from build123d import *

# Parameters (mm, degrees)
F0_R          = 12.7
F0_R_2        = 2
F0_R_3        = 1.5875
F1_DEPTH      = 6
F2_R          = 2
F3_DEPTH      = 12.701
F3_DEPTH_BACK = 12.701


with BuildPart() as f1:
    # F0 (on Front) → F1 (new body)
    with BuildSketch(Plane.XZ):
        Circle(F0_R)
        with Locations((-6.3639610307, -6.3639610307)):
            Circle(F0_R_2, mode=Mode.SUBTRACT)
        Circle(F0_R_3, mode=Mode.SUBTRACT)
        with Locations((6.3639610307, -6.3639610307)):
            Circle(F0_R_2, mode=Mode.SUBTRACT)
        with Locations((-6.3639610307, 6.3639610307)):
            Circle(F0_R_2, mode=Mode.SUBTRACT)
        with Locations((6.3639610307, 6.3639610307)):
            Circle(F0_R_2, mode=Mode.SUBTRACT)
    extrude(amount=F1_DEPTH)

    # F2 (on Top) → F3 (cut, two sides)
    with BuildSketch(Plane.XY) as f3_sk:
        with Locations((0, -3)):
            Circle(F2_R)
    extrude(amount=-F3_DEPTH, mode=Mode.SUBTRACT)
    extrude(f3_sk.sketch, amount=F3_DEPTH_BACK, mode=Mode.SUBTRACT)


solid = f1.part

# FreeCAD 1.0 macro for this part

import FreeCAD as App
import Part
import Sketcher

V = App.Vector

doc = App.newDocument("Part")
body = doc.addObject("PartDesign::Body", "Body")

# Sketch on XZ plane
sketch1 = body.newObject("Sketcher::SketchObject", "Sketch")
sketch1.AttachmentSupport = (doc.getObject("XZ_Plane"), [""])
sketch1.MapMode = "FlatFace"
sketch1.addGeometry(Part.Circle(V(0, 0, 0), V(0, 0, 1), 12.7), False)
sketch1.addGeometry(Part.Circle(V(-6.4, -6.4, 0), V(0, 0, 1), 2), False)
sketch1.addGeometry(Part.Circle(V(6.4, -6.4, 0), V(0, 0, 1), 2), False)
sketch1.addGeometry(Part.Circle(V(0, 0, 0), V(0, 0, 1), 1.6), False)
sketch1.addGeometry(Part.Circle(V(-6.4, 6.4, 0), V(0, 0, 1), 2), False)
sketch1.addGeometry(Part.Circle(V(6.4, 6.4, 0), V(0, 0, 1), 2), False)
sketch1.addConstraint(Sketcher.Constraint("Coincident", 0, 3, -1, 1))
sketch1.addConstraint(Sketcher.Constraint("Coincident", 3, 3, -1, 1))
sketch1.addConstraint(Sketcher.Constraint("Equal", 1, 2))
sketch1.addConstraint(Sketcher.Constraint("Equal", 2, 4))
sketch1.addConstraint(Sketcher.Constraint("Equal", 4, 5))
sketch1.addConstraint(Sketcher.Constraint("Symmetric", 2, 3, 4, 3, -1, 1))
sketch1.addConstraint(Sketcher.Constraint("Symmetric", 1, 3, 5, 3, -1, 1))
sketch1.addConstraint(Sketcher.Constraint("Symmetric", 1, 3, 2, 3, -2))
sketch1.addConstraint(Sketcher.Constraint("Diameter", 1, 4.0))
sketch1.addConstraint(Sketcher.Constraint("Diameter", 0, 25.4))
sketch1.addConstraint(Sketcher.Constraint("Diameter", 3, 3.175))
sketch1.addConstraint(Sketcher.Constraint("DistanceX", 1, 3, -1, 1, 6.363961))
sketch1.addConstraint(Sketcher.Constraint("DistanceY", 1, 3, -1, 1, 6.363961))
pad1 = body.newObject("PartDesign::Pad", "Pad")
pad1.Profile = sketch1
pad1.Length = 6

# Sketch on XY plane
sketch2 = body.newObject("Sketcher::SketchObject", "Sketch001")
sketch2.AttachmentSupport = (doc.getObject("XY_Plane"), [""])
sketch2.MapMode = "FlatFace"
sketch2.addGeometry(Part.Circle(V(0, -3, 0), V(0, 0, 1), 2), False)
sketch2.addConstraint(Sketcher.Constraint("PointOnObject", 0, 3, -2))
sketch2.addConstraint(Sketcher.Constraint("Diameter", 0, 4.0))
sketch2.addConstraint(Sketcher.Constraint("DistanceY", 0, 3, -1, 1, 3.0))
pocket1 = body.newObject("PartDesign::Pocket", "Pocket")
pocket1.Profile = sketch2
pocket1.Type = "ThroughAll"
pocket1.Midplane = True

doc.recompute()
